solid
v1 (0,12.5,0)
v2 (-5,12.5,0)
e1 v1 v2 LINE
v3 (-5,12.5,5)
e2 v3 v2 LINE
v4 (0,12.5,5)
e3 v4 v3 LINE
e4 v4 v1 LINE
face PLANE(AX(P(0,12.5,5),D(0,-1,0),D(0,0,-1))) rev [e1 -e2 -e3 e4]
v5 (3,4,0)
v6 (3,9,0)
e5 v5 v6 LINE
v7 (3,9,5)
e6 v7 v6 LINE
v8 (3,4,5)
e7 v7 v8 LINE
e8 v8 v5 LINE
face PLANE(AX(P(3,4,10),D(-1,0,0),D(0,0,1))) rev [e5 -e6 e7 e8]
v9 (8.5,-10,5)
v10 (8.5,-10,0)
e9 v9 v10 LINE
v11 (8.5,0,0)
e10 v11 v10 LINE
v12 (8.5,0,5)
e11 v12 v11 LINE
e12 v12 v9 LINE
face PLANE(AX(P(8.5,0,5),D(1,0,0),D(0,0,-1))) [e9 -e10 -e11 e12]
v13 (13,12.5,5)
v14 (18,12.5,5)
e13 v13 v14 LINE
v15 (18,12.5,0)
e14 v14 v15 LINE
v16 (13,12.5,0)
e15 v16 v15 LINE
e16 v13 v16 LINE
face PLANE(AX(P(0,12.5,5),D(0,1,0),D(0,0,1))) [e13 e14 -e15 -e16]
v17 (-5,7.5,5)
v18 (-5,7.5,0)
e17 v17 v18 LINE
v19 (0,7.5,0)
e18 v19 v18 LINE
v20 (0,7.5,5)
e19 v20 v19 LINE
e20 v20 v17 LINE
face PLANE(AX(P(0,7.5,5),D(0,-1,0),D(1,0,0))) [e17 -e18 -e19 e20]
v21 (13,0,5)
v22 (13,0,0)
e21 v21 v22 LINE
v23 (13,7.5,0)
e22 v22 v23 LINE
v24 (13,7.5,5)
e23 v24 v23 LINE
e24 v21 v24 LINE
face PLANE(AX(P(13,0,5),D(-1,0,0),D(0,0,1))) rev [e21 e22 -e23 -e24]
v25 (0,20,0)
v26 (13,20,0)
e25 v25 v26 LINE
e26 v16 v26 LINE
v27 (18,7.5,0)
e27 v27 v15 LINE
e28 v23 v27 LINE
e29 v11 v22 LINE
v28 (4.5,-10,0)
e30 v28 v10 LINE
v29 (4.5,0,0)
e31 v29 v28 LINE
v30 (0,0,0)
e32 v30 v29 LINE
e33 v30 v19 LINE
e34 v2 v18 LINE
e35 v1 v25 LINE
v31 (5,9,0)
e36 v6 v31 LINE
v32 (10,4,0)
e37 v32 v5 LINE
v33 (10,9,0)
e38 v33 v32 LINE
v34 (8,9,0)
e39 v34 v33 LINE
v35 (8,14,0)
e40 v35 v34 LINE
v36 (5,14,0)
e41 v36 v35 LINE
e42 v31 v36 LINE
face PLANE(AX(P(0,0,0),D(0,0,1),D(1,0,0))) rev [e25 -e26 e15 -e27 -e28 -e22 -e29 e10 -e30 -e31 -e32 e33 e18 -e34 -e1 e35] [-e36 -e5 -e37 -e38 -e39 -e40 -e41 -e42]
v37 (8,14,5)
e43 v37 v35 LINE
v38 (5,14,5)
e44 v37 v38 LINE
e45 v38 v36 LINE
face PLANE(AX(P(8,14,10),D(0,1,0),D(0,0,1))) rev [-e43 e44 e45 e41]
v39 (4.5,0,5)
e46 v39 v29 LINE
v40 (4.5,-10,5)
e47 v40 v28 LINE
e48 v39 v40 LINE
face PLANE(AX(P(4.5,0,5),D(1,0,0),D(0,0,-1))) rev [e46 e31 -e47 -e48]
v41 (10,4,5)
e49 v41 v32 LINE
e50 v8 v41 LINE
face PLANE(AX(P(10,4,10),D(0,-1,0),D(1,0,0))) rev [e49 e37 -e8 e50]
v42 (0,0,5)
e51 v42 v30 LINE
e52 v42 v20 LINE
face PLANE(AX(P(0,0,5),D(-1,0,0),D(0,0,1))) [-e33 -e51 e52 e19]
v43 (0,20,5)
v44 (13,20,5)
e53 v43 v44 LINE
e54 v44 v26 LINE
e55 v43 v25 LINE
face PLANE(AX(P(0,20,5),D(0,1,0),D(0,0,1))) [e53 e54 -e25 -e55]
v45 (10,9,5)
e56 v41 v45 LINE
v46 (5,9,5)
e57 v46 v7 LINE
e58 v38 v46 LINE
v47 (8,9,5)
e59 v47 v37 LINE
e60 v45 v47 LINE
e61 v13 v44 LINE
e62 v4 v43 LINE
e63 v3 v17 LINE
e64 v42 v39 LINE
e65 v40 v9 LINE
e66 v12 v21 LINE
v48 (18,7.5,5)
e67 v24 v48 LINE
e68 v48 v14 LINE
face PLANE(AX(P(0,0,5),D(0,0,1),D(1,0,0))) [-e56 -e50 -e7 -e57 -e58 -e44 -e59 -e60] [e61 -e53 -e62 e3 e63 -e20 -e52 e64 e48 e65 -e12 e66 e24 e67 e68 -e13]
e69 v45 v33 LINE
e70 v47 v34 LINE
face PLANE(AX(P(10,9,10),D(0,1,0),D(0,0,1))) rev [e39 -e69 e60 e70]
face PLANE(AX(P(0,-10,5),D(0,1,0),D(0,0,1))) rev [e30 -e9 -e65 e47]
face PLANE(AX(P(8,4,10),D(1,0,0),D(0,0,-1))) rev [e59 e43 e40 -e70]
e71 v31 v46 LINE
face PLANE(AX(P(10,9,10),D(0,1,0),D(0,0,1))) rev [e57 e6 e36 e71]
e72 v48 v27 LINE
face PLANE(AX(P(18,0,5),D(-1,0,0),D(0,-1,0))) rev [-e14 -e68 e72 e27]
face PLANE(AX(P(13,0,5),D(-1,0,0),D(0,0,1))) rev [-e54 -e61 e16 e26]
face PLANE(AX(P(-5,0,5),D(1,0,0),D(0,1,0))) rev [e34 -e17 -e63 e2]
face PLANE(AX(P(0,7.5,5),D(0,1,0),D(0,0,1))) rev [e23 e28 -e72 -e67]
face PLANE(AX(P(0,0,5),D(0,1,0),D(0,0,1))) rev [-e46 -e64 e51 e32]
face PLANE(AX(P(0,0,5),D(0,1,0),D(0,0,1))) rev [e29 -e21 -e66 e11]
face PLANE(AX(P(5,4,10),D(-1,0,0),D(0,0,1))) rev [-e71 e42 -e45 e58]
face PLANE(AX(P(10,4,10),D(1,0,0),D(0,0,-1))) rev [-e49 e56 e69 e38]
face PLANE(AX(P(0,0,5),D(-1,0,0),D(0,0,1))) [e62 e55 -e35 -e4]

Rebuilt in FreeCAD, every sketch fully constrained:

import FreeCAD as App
import Part
import Sketcher
from FreeCAD import Vector
Q = App.Units.Quantity


def add_polygon(sketch, points):
    """Adds a closed chain of lines whose ends are joined by coincident constraints."""
    first, n = sketch.GeometryCount, len(points)
    for a, b in zip(points, points[1:] + points[:1]):
        sketch.addGeometry(Part.LineSegment(App.Vector(*a, 0), App.Vector(*b, 0)), False)
    for i in range(n):
        sketch.addConstraint(Sketcher.Constraint("Coincident", first + i, 2, first + (i + 1) % n, 1))

doc = App.newDocument("Part")
body = doc.addObject("PartDesign::Body", "Body")

# Sketch on XY plane
sketch1 = body.newObject("Sketcher::SketchObject", "Sketch")
sketch1.AttachmentSupport = (doc.getObject("XY_Plane"), [""])
sketch1.MapMode = "FlatFace"
add_polygon(sketch1, [(4.5, 0), (4.5, -10), (8.5, -10), (8.5, 0), (13, 0), (13, 7.5), (18, 7.5), (18, 12.5), (13, 12.5), (13, 20), (0, 20), (0, 12.5), (-5, 12.5), (-5, 7.5), (0, 7.5), (0, 0)])  # lines 0-15
sketch1.addConstraint([
    Sketcher.Constraint("Vertical", 0),
    Sketcher.Constraint("Horizontal", 1),
    Sketcher.Constraint("Vertical", 2),
    Sketcher.Constraint("Horizontal", 3),
    Sketcher.Constraint("Vertical", 4),
    Sketcher.Constraint("Horizontal", 5),
    Sketcher.Constraint("Vertical", 6),
    Sketcher.Constraint("Horizontal", 7),
    Sketcher.Constraint("Vertical", 8),
    Sketcher.Constraint("Horizontal", 9),
    Sketcher.Constraint("Vertical", 10),
    Sketcher.Constraint("Horizontal", 11),
    Sketcher.Constraint("Vertical", 12),
    Sketcher.Constraint("Horizontal", 13),
    Sketcher.Constraint("Vertical", 14),
    Sketcher.Constraint("Horizontal", 15),
    Sketcher.Constraint("Coincident", 14, 2, -1, 1),
    Sketcher.Constraint("PointOnObject", 2, 2, -1),
    Sketcher.Constraint("PointOnObject", 9, 2, -2),
    Sketcher.Constraint("Horizontal", 7, 2, 10, 2),
    Sketcher.Constraint("Horizontal", 5, 2, 12, 2),
    Sketcher.Constraint("Vertical", 4, 2, 7, 2),
    Sketcher.Constraint("Equal", 7, 11),
    Sketcher.Constraint("Equal", 3, 15),
    Sketcher.Constraint("Equal", 13, 6),
    Sketcher.Constraint("Equal", 4, 8),
    Sketcher.Constraint("DistanceX", 1, 1, 1, 2, Q("4 mm")),
    Sketcher.Constraint("DistanceX", 5, 1, 5, 2, Q("5 mm")),
    Sketcher.Constraint("DistanceX", 9, 2, 9, 1, Q("13 mm")),
    Sketcher.Constraint("DistanceY", 0, 2, 0, 1, Q("10 mm")),
    Sketcher.Constraint("DistanceY", 4, 1, 4, 2, Q("7.5 mm")),
])
pad1 = body.newObject("PartDesign::Pad", "Pad")
pad1.Profile = sketch1
pad1.Length = 5

# Sketch on XY plane
sketch2 = body.newObject("Sketcher::SketchObject", "Sketch001")
sketch2.AttachmentSupport = (doc.getObject("XY_Plane"), [""])
sketch2.MapMode = "FlatFace"
add_polygon(sketch2, [(10, 9), (10, 4), (3, 4), (3, 9)])  # lines 0-3
sketch2.addConstraint([
    Sketcher.Constraint("Vertical", 0),
    Sketcher.Constraint("Horizontal", 1),
    Sketcher.Constraint("Vertical", 2),
    Sketcher.Constraint("Horizontal", 3),
    Sketcher.Constraint("DistanceX", 1, 2, 1, 1, Q("7 mm")),
    Sketcher.Constraint("DistanceY", 0, 2, 0, 1, Q("5 mm")),
    Sketcher.Constraint("DistanceX", -1, 1, 0, 2, Q("10 mm")),
    Sketcher.Constraint("DistanceY", -1, 1, 0, 2, Q("4 mm")),
])
pocket1 = body.newObject("PartDesign::Pocket", "Pocket")
pocket1.Profile = sketch2
pocket1.Length = 10
pocket1.Reversed = True

# Sketch on XY plane
sketch3 = body.newObject("Sketcher::SketchObject", "Sketch002")
sketch3.AttachmentSupport = (doc.getObject("XY_Plane"), [""])
sketch3.MapMode = "FlatFace"
add_polygon(sketch3, [(8, 14), (8, 4), (5, 4), (5, 14)])  # lines 0-3
sketch3.addConstraint([
    Sketcher.Constraint("Vertical", 0),
    Sketcher.Constraint("Horizontal", 1),
    Sketcher.Constraint("Vertical", 2),
    Sketcher.Constraint("Horizontal", 3),
    Sketcher.Constraint("DistanceX", 1, 2, 1, 1, Q("3 mm")),
    Sketcher.Constraint("DistanceY", 0, 2, 0, 1, Q("10 mm")),
    Sketcher.Constraint("DistanceX", -1, 1, 0, 2, Q("8 mm")),
    Sketcher.Constraint("DistanceY", -1, 1, 0, 2, Q("4 mm")),
])
pocket2 = body.newObject("PartDesign::Pocket", "Pocket001")
pocket2.Profile = sketch3
pocket2.Length = 10
pocket2.Reversed = True

doc.recompute()
